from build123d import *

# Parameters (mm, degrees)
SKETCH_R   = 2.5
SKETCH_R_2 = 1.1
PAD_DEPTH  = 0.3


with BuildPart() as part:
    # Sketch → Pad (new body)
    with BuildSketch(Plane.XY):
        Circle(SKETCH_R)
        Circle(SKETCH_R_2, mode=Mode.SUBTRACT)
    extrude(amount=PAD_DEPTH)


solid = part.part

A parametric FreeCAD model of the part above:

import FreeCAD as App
import Part
import Sketcher

V = App.Vector

doc = App.newDocument("Part")
body = doc.addObject("PartDesign::Body", "Body")

# Sketch on XY plane
sketch1 = doc.addObject("Sketcher::SketchObject", "Sketch")
body.addObject(sketch1)
sketch1.AttachmentSupport = (doc.XY_Plane, [""])
sketch1.MapMode = "FlatFace"
sketch1.addGeometry([
    Part.Circle(V(0, 0, 0), V(0, 0, 1), 2.5),
    Part.Circle(V(0, 0, 0), V(0, 0, 1), 1.1),
], False)
sketch1.addConstraint([
    Sketcher.Constraint("Coincident", 0, 3, -1, 1),
    Sketcher.Constraint("Coincident", 1, 3, -1, 1),
    Sketcher.Constraint("Diameter", 0, 5.0),
    Sketcher.Constraint("Diameter", 1, 2.2),
])
pad1 = doc.addObject("PartDesign::Pad", "Pad")
body.addObject(pad1)
pad1.Profile = sketch1
pad1.Length = 0.3

doc.recompute()
